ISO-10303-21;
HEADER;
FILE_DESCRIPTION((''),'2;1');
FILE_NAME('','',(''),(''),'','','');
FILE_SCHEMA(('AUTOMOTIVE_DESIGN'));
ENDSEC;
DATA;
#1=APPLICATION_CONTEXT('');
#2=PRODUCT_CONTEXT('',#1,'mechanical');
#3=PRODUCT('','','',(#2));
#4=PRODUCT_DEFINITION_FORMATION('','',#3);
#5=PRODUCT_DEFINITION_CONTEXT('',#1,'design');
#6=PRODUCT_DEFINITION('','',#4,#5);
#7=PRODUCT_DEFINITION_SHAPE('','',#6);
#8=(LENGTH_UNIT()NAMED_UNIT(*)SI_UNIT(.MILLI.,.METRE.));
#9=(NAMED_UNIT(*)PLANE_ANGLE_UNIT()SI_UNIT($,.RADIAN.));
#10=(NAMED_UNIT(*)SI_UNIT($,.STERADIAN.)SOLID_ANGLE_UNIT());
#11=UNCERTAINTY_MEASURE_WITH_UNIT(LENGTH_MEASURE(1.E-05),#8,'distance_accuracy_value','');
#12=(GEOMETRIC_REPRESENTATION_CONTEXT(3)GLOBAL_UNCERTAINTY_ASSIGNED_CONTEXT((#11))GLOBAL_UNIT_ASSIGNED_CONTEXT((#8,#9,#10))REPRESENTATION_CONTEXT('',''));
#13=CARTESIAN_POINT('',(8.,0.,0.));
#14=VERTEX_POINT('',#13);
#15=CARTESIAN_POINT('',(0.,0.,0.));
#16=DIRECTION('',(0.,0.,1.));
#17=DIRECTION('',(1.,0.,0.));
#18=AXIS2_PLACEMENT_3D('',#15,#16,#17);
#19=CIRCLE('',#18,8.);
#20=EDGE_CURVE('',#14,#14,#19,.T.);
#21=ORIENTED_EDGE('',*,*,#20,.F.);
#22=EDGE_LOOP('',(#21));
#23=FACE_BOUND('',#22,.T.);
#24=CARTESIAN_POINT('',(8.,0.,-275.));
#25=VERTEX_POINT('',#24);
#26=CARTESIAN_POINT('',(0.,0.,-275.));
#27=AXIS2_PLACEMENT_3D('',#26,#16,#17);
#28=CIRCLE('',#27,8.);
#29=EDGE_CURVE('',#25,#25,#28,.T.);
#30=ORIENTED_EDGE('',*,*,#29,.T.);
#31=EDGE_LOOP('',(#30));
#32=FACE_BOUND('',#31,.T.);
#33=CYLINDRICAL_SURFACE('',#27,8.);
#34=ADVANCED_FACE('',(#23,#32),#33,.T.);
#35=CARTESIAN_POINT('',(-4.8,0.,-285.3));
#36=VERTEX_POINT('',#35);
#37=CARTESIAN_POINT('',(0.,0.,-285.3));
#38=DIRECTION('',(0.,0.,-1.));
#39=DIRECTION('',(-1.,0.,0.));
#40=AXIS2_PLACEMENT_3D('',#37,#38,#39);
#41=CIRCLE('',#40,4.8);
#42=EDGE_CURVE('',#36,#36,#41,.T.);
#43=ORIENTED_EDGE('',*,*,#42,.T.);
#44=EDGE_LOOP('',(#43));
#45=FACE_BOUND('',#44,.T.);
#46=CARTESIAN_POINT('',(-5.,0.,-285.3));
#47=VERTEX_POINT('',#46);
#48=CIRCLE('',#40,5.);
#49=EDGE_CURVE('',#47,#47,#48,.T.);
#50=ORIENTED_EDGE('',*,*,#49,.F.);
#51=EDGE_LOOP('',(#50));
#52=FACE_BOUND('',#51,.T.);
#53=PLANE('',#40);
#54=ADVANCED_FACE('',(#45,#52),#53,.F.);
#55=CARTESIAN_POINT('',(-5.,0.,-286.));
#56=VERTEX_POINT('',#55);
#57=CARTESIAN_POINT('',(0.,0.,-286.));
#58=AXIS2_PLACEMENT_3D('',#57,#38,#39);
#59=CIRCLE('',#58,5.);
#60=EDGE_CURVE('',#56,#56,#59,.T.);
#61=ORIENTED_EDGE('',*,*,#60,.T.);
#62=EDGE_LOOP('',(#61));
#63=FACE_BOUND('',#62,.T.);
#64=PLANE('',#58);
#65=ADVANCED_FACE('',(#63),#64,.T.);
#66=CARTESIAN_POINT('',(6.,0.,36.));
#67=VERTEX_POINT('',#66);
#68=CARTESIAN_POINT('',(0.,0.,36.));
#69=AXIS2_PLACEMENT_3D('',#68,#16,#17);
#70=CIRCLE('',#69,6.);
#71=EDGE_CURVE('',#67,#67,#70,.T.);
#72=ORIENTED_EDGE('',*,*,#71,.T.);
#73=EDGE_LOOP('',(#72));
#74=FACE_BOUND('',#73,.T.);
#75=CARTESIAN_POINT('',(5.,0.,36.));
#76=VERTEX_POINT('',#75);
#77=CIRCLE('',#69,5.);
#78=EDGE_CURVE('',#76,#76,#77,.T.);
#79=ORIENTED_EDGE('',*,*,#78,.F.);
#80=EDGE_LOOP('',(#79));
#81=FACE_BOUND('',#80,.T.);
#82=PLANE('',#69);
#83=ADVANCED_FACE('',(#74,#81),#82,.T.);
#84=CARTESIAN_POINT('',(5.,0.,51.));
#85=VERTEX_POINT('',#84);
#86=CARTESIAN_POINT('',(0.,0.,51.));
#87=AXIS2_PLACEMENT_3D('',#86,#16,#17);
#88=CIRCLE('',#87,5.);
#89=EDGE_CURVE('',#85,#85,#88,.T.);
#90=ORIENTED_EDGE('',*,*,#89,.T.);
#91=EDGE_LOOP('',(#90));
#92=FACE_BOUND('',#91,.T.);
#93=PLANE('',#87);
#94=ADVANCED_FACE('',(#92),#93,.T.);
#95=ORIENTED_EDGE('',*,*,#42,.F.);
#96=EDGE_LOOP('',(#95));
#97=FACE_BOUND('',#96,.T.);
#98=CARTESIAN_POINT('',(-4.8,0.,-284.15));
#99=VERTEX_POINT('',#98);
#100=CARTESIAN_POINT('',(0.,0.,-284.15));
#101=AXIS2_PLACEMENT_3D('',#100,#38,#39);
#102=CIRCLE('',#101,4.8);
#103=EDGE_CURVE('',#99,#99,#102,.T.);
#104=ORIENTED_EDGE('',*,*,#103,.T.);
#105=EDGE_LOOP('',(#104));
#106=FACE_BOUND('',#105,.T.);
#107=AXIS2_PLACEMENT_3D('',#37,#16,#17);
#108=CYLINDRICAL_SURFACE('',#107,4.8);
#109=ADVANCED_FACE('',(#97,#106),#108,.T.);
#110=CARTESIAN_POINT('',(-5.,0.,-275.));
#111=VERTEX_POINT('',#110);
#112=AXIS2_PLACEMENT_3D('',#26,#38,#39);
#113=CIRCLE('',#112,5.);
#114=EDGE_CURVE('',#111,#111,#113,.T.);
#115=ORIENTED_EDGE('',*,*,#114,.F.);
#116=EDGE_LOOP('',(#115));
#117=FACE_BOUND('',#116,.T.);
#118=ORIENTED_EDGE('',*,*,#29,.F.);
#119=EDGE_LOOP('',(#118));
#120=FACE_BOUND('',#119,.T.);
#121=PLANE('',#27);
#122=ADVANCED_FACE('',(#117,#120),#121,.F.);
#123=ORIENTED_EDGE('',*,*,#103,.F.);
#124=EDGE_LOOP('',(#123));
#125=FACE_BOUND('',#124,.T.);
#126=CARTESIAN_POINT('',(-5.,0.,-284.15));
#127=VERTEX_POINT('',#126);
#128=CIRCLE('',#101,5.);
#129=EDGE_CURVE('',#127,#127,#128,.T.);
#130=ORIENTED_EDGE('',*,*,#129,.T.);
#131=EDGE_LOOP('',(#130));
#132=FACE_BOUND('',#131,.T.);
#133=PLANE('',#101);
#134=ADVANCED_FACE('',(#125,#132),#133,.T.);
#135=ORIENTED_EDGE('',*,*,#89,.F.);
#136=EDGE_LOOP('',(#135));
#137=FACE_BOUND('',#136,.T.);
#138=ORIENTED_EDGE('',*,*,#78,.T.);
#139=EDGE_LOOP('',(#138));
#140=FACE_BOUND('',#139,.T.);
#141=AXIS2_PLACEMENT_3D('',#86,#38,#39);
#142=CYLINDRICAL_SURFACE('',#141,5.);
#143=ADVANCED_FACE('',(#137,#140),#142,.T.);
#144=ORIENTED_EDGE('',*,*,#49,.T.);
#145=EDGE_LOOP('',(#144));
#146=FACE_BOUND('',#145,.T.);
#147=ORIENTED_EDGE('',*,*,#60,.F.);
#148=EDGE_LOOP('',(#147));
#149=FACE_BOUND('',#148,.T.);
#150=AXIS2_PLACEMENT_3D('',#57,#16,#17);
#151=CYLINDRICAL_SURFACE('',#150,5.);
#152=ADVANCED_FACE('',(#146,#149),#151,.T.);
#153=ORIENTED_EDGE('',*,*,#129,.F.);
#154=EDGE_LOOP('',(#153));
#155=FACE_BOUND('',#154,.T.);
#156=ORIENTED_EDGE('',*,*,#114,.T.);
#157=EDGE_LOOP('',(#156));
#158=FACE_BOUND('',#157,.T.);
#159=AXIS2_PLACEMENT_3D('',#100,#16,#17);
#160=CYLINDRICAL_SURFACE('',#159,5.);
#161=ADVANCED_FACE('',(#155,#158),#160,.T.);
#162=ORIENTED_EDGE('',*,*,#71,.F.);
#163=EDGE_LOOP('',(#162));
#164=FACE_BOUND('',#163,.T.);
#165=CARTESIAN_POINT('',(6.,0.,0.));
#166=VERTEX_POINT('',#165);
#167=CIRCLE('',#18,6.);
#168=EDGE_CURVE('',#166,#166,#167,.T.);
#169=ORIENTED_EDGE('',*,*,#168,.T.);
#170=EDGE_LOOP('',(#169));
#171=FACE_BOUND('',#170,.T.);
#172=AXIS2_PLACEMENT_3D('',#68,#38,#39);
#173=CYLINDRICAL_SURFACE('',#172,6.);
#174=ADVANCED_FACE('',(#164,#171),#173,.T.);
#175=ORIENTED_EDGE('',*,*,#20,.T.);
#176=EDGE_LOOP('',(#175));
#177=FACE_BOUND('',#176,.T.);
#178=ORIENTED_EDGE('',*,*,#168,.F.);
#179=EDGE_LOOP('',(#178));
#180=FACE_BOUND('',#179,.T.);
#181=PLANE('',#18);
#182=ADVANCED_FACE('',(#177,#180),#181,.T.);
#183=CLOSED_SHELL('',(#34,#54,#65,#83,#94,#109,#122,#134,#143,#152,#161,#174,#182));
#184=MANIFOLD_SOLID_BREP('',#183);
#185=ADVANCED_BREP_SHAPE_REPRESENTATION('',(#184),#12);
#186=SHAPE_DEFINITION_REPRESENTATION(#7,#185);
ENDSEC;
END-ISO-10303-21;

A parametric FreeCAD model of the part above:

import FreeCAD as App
import Part
import Sketcher

doc = App.newDocument("Part")
body = doc.addObject("PartDesign::Body", "Body")

# Sketch on XY plane
sketch1 = doc.addObject("Sketcher::SketchObject", "Sketch")
body.addObject(sketch1)
sketch1.AttachmentSupport = (doc.XY_Plane, [""])
sketch1.MapMode = "FlatFace"
sketch1.addGeometry(Part.Circle(App.Vector(0, 0, 0), App.Vector(0, 0, 1), 8), False)
sketch1.addConstraint(Sketcher.Constraint("Coincident", 0, 3, -1, 1))
sketch1.addConstraint(Sketcher.Constraint("Diameter", 0, 16.0))
pad1 = doc.addObject("PartDesign::Pad", "Pad")
body.addObject(pad1)
pad1.Profile = sketch1
pad1.Length = 275
pad1.Reversed = True

# Sketch on XY plane
sketch2 = doc.addObject("Sketcher::SketchObject", "Sketch001")
body.addObject(sketch2)
sketch2.AttachmentSupport = (doc.XY_Plane, [""])
sketch2.MapMode = "FlatFace"
sketch2.addGeometry(Part.Circle(App.Vector(0, 0, 0), App.Vector(0, 0, 1), 6), False)
sketch2.addConstraint(Sketcher.Constraint("Coincident", 0, 3, -1, 1))
sketch2.addConstraint(Sketcher.Constraint("Diameter", 0, 12.0))
pad2 = doc.addObject("PartDesign::Pad", "Pad001")
body.addObject(pad2)
pad2.Profile = sketch2
pad2.Length = 36

# Sketch on XY plane
sketch3 = doc.addObject("Sketcher::SketchObject", "Sketch002")
body.addObject(sketch3)
sketch3.AttachmentSupport = (doc.XY_Plane, [""])
sketch3.MapMode = "FlatFace"
sketch3.AttachmentOffset = App.Placement(App.Vector(0, 0, 36), App.Rotation())
sketch3.addGeometry(Part.Circle(App.Vector(0, 0, 0), App.Vector(0, 0, 1), 5), False)
sketch3.addConstraint(Sketcher.Constraint("Coincident", 0, 3, -1, 1))
sketch3.addConstraint(Sketcher.Constraint("Diameter", 0, 10.0))
pad3 = doc.addObject("PartDesign::Pad", "Pad002")
body.addObject(pad3)
pad3.Profile = sketch3
pad3.Length = 15

# Sketch on XY plane
sketch4 = doc.addObject("Sketcher::SketchObject", "Sketch003")
body.addObject(sketch4)
sketch4.AttachmentSupport = (doc.XY_Plane, [""])
sketch4.MapMode = "FlatFace"
sketch4.AttachmentOffset = App.Placement(App.Vector(0, 0, -284.15), App.Rotation())
sketch4.addGeometry(Part.Circle(App.Vector(0, 0, 0), App.Vector(0, 0, 1), 5), False)
sketch4.addConstraint(Sketcher.Constraint("Coincident", 0, 3, -1, 1))
sketch4.addConstraint(Sketcher.Constraint("Diameter", 0, 10.0))
pad4 = doc.addObject("PartDesign::Pad", "Pad003")
body.addObject(pad4)
pad4.Profile = sketch4
pad4.Length = 9.15

# Sketch on XY plane
sketch5 = doc.addObject("Sketcher::SketchObject", "Sketch004")
body.addObject(sketch5)
sketch5.AttachmentSupport = (doc.XY_Plane, [""])
sketch5.MapMode = "FlatFace"
sketch5.AttachmentOffset = App.Placement(App.Vector(0, 0, -284.15), App.Rotation())
sketch5.addGeometry(Part.Circle(App.Vector(0, 0, 0), App.Vector(0, 0, 1), 4.8), False)
sketch5.addConstraint(Sketcher.Constraint("Coincident", 0, 3, -1, 1))
sketch5.addConstraint(Sketcher.Constraint("Diameter", 0, 9.6))
pad5 = doc.addObject("PartDesign::Pad", "Pad004")
body.addObject(pad5)
pad5.Profile = sketch5
pad5.Length = 1.15
pad5.Reversed = True

# Sketch on XY plane
sketch6 = doc.addObject("Sketcher::SketchObject", "Sketch005")
body.addObject(sketch6)
sketch6.AttachmentSupport = (doc.XY_Plane, [""])
sketch6.MapMode = "FlatFace"
sketch6.AttachmentOffset = App.Placement(App.Vector(0, 0, -286), App.Rotation())
sketch6.addGeometry(Part.Circle(App.Vector(0, 0, 0), App.Vector(0, 0, 1), 5), False)
sketch6.addConstraint(Sketcher.Constraint("Coincident", 0, 3, -1, 1))
sketch6.addConstraint(Sketcher.Constraint("Diameter", 0, 10.0))
pad6 = doc.addObject("PartDesign::Pad", "Pad005")
body.addObject(pad6)
pad6.Profile = sketch6
pad6.Length = 0.7

doc.recompute()
